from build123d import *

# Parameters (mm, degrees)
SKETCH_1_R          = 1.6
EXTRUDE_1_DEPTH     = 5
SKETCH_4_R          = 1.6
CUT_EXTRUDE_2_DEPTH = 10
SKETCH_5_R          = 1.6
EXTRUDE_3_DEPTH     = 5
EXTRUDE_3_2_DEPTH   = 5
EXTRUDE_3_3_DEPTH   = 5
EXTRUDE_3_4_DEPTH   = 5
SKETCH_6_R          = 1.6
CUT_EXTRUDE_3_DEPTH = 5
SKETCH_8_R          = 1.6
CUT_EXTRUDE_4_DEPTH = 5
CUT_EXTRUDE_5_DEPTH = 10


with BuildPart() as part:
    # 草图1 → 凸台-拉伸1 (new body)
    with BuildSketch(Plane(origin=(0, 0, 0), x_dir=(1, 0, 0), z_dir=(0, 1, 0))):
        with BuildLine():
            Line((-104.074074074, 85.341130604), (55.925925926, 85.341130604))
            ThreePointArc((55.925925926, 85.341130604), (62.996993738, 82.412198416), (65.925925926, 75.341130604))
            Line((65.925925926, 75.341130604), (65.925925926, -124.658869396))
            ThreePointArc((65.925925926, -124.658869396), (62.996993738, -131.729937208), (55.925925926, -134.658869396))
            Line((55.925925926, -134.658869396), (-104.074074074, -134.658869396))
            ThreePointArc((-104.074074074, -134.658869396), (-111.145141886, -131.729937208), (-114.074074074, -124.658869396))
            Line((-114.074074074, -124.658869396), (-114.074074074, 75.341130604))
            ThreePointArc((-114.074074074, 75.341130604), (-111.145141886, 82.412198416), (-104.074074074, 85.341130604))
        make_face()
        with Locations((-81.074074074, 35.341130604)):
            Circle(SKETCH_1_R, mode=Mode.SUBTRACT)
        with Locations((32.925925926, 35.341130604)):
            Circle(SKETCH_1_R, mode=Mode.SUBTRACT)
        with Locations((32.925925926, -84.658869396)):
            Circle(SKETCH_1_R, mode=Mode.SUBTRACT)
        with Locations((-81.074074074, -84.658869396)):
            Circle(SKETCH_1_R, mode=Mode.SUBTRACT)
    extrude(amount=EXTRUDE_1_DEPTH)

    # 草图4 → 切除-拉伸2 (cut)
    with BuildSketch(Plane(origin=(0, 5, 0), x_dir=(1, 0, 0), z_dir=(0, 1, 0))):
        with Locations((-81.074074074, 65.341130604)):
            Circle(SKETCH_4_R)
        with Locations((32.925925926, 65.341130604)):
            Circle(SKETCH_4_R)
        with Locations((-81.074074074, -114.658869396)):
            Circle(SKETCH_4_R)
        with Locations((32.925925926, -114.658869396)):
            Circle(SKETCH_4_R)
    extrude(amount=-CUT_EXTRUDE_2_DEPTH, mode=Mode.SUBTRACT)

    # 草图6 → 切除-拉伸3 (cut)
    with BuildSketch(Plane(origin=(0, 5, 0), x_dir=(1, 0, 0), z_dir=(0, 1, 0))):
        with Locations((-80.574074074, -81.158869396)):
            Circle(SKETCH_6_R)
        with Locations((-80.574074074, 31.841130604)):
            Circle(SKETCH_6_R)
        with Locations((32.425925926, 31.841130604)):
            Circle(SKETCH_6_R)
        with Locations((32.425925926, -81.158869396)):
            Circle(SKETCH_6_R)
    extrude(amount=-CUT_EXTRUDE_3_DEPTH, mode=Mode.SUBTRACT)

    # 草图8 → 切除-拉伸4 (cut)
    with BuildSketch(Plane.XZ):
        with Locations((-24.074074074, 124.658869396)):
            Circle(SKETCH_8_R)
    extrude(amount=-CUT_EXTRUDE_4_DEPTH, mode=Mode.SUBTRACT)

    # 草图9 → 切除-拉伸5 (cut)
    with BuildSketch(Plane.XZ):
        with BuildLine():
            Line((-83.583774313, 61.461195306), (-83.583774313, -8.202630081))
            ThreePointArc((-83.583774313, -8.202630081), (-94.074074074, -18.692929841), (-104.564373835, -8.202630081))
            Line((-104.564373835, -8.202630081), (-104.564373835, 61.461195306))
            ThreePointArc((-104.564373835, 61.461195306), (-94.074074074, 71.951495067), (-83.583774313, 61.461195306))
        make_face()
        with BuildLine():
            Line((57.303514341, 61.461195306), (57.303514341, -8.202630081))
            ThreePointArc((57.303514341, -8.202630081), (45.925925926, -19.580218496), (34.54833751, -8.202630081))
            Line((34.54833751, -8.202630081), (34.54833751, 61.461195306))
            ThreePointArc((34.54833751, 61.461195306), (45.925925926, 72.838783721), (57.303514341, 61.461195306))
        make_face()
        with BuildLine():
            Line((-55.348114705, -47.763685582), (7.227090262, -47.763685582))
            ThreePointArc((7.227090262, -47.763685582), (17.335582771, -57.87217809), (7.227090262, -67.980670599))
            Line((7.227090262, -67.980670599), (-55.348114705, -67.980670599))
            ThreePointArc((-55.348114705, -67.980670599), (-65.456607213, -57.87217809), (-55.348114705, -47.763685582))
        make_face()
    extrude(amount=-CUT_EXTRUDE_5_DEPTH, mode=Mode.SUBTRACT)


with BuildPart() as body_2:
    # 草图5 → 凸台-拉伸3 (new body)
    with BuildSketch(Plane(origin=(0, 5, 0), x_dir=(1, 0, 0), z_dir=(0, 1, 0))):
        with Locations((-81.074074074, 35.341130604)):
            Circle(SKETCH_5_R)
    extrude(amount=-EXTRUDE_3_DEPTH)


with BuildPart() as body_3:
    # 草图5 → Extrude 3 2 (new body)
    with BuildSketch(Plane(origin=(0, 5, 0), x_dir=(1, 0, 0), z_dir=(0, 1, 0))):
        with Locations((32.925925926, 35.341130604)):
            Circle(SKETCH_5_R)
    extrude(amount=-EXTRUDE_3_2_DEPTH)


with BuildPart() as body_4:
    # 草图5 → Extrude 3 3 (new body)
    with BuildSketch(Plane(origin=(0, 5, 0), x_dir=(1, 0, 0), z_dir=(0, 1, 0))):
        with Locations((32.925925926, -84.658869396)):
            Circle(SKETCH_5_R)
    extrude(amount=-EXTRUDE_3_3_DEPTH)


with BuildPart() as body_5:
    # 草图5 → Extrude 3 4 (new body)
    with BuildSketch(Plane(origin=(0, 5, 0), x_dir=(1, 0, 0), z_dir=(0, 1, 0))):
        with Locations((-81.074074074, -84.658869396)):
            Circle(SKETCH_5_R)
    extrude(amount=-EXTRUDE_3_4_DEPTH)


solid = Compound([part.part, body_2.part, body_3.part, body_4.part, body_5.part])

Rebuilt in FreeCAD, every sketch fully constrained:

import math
import FreeCAD as App
import Part
import Sketcher
from FreeCAD import Vector

doc = App.newDocument("Part")
params = doc.addObject("Spreadsheet::Sheet", "Params")
for row, (alias, value) in enumerate([
    ("sketch1_radius", "10 mm"),
    ("sketch1_diameter", "3.2 mm"),
    ("sketch1_width", "160 mm"),
    ("sketch1_height", "200 mm"),
    ("pad1_length", "5 mm"),
    ("sketch2_diameter", "3.2 mm"),
    ("pocket1_length", "10 mm"),
    ("sketch3_diameter", "3.2 mm"),
    ("pocket2_length", "5 mm"),
    ("sketch4_diameter", "3.2 mm"),
    ("pocket3_length", "5 mm"),
    ("pocket4_length", "10 mm"),
    ("sketch6_diameter", "3.2 mm"),
    ("pad2_length", "5 mm"),
    ("sketch7_diameter", "3.2 mm"),
    ("pad3_length", "5 mm"),
    ("sketch8_diameter", "3.2 mm"),
    ("pad4_length", "5 mm"),
    ("sketch9_diameter", "3.2 mm"),
    ("pad5_length", "5 mm"),
], start=1):
    params.set(f"A{row}", alias)
    params.set(f"B{row}", "=" + value)
    params.setAlias(f"B{row}", alias)

body = doc.addObject("PartDesign::Body", "Body")

sketch1 = body.newObject("Sketcher::SketchObject", "Sketch")
sketch1.AttachmentSupport = (doc.getObject("XZ_Plane"), [""])
sketch1.MapMode = "FlatFace"
sketch1.addGeometry([
    Part.LineSegment(Vector(55.925926, -85.341131, 0), Vector(-104.074074, -85.341131, 0)),
    Part.ArcOfCircle(Part.Circle(Vector(-104.074074, -75.341131, 0), Vector(0, 0, 1), 10), math.radians(180), math.radians(270)),
    Part.LineSegment(Vector(-114.074074, -75.341131, 0), Vector(-114.074074, 124.658869, 0)),
    Part.ArcOfCircle(Part.Circle(Vector(-104.074074, 124.658869, 0), Vector(0, 0, 1), 10), math.radians(90), math.radians(180)),
    Part.LineSegment(Vector(-104.074074, 134.658869, 0), Vector(55.925926, 134.658869, 0)),
    Part.ArcOfCircle(Part.Circle(Vector(55.925926, 124.658869, 0), Vector(0, 0, 1), 10), math.radians(0), math.radians(90)),
    Part.LineSegment(Vector(65.925926, 124.658869, 0), Vector(65.925926, -75.341131, 0)),
    Part.ArcOfCircle(Part.Circle(Vector(55.925926, -75.341131, 0), Vector(0, 0, 1), 10), math.radians(-90), math.radians(0)),
    Part.Circle(Vector(32.925926, 84.658869, 0), Vector(0, 0, 1), 1.6),
    Part.Circle(Vector(-81.074074, 84.658869, 0), Vector(0, 0, 1), 1.6),
    Part.Circle(Vector(32.925926, -35.341131, 0), Vector(0, 0, 1), 1.6),
    Part.Circle(Vector(-81.074074, -35.341131, 0), Vector(0, 0, 1), 1.6),
], False)
sketch1.addConstraint([
    Sketcher.Constraint("Tangent", 0, 2, 1, 2),
    Sketcher.Constraint("Tangent", 1, 1, 2, 1),
    Sketcher.Constraint("Tangent", 2, 2, 3, 2),
    Sketcher.Constraint("Tangent", 3, 1, 4, 1),
    Sketcher.Constraint("Tangent", 4, 2, 5, 2),
    Sketcher.Constraint("Tangent", 5, 1, 6, 1),
    Sketcher.Constraint("Tangent", 6, 2, 7, 2),
    Sketcher.Constraint("Tangent", 7, 1, 0, 1),
    Sketcher.Constraint("Horizontal", 0),
    Sketcher.Constraint("Vertical", 2),
    Sketcher.Constraint("Horizontal", 4),
    Sketcher.Constraint("Vertical", 6),
    Sketcher.Constraint("Equal", 1, 3),
    Sketcher.Constraint("Equal", 3, 5),
    Sketcher.Constraint("Equal", 5, 7),
    Sketcher.Constraint("Equal", 8, 9),
    Sketcher.Constraint("Equal", 9, 10),
    Sketcher.Constraint("Equal", 10, 11),
    Sketcher.Constraint("Horizontal", 8, 3, 9, 3),
    Sketcher.Constraint("Horizontal", 10, 3, 11, 3),
    Sketcher.Constraint("Vertical", 8, 3, 10, 3),
    Sketcher.Constraint("Vertical", 9, 3, 11, 3),
    Sketcher.Constraint("Radius", 1, 10.0),
    Sketcher.Constraint("Diameter", 8, 3.2),
    Sketcher.Constraint("DistanceX", 0, 2, 0, 1, 160.0),
    Sketcher.Constraint("DistanceY", 2, 1, 2, 2, 200.0),
    Sketcher.Constraint("DistanceX", 8, 3, 5, 3, 23.0),
    Sketcher.Constraint("DistanceY", 8, 3, 5, 3, 40.0),
    Sketcher.Constraint("DistanceX", 3, 3, 9, 3, 23.0),
    Sketcher.Constraint("DistanceY", 7, 3, 10, 3, 40.0),
    Sketcher.Constraint("DistanceY", 1, 3, -1, 1, 75.341131),
    Sketcher.Constraint("DistanceX", 1, 3, -1, 1, 104.074074),
])
sketch1.setExpression("Constraints[22]", "Params.sketch1_radius")
sketch1.setExpression("Constraints[23]", "Params.sketch1_diameter")
sketch1.setExpression("Constraints[24]", "Params.sketch1_width")
sketch1.setExpression("Constraints[25]", "Params.sketch1_height")
pad1 = body.newObject("PartDesign::Pad", "Pad")
pad1.Profile = sketch1
pad1.setExpression("Length", "Params.pad1_length")
pad1.Reversed = True

sketch2 = body.newObject("Sketcher::SketchObject", "Sketch001")
sketch2.AttachmentSupport = (doc.getObject("XZ_Plane"), [""])
sketch2.MapMode = "FlatFace"
sketch2.AttachmentOffset = App.Placement(Vector(0, 0, -5), App.Rotation())
sketch2.addGeometry([
    Part.Circle(Vector(-81.074074, -65.341131, 0), Vector(0, 0, 1), 1.6),
    Part.Circle(Vector(32.925926, -65.341131, 0), Vector(0, 0, 1), 1.6),
    Part.Circle(Vector(-81.074074, 114.658869, 0), Vector(0, 0, 1), 1.6),
    Part.Circle(Vector(32.925926, 114.658869, 0), Vector(0, 0, 1), 1.6),
], False)
sketch2.addConstraint([
    Sketcher.Constraint("Equal", 0, 1),
    Sketcher.Constraint("Equal", 1, 2),
    Sketcher.Constraint("Equal", 2, 3),
    Sketcher.Constraint("Horizontal", 0, 3, 1, 3),
    Sketcher.Constraint("Horizontal", 2, 3, 3, 3),
    Sketcher.Constraint("Vertical", 0, 3, 2, 3),
    Sketcher.Constraint("Vertical", 1, 3, 3, 3),
    Sketcher.Constraint("Diameter", 0, 3.2),
    Sketcher.Constraint("DistanceX", 0, 3, 1, 3, 114.0),
    Sketcher.Constraint("DistanceY", 0, 3, 2, 3, 180.0),
    Sketcher.Constraint("DistanceY", 0, 3, -1, 1, 65.341131),
    Sketcher.Constraint("DistanceX", 0, 3, -1, 1, 81.074074),
])
sketch2.setExpression("Constraints[7]", "Params.sketch2_diameter")
pocket1 = body.newObject("PartDesign::Pocket", "Pocket")
pocket1.Profile = sketch2
pocket1.setExpression("Length", "Params.pocket1_length")
pocket1.Reversed = True

sketch3 = body.newObject("Sketcher::SketchObject", "Sketch002")
sketch3.AttachmentSupport = (doc.getObject("XZ_Plane"), [""])
sketch3.MapMode = "FlatFace"
sketch3.AttachmentOffset = App.Placement(Vector(0, 0, -5), App.Rotation())
sketch3.addGeometry([
    Part.Circle(Vector(-80.574074, 81.158869, 0), Vector(0, 0, 1), 1.6),
    Part.Circle(Vector(-80.574074, -31.841131, 0), Vector(0, 0, 1), 1.6),
    Part.Circle(Vector(32.425926, -31.841131, 0), Vector(0, 0, 1), 1.6),
    Part.Circle(Vector(32.425926, 81.158869, 0), Vector(0, 0, 1), 1.6),
], False)
sketch3.addConstraint([
    Sketcher.Constraint("Equal", 0, 1),
    Sketcher.Constraint("Equal", 1, 2),
    Sketcher.Constraint("Equal", 2, 3),
    Sketcher.Constraint("Horizontal", 1, 3, 2, 3),
    Sketcher.Constraint("Horizontal", 0, 3, 3, 3),
    Sketcher.Constraint("Vertical", 0, 3, 1, 3),
    Sketcher.Constraint("Vertical", 2, 3, 3, 3),
    Sketcher.Constraint("Diameter", 0, 3.2),
    Sketcher.Constraint("DistanceY", 1, 3, 0, 3, 113.0),
    Sketcher.Constraint("DistanceX", 1, 3, 2, 3, 113.0),
    Sketcher.Constraint("DistanceY", -1, 1, 0, 3, 81.158869),
    Sketcher.Constraint("DistanceX", 0, 3, -1, 1, 80.574074),
])
sketch3.setExpression("Constraints[7]", "Params.sketch3_diameter")
pocket2 = body.newObject("PartDesign::Pocket", "Pocket001")
pocket2.Profile = sketch3
pocket2.setExpression("Length", "Params.pocket2_length")
pocket2.Reversed = True

sketch4 = body.newObject("Sketcher::SketchObject", "Sketch003")
sketch4.AttachmentSupport = (doc.getObject("XZ_Plane"), [""])
sketch4.MapMode = "FlatFace"
sketch4.addGeometry(Part.Circle(Vector(-24.074074, 124.658869, 0), Vector(0, 0, 1), 1.6), False)
sketch4.addConstraint([
    Sketcher.Constraint("Diameter", 0, 3.2),
    Sketcher.Constraint("DistanceY", -1, 1, 0, 3, 124.658869),
    Sketcher.Constraint("DistanceX", 0, 3, -1, 1, 24.074074),
])
sketch4.setExpression("Constraints[0]", "Params.sketch4_diameter")
pocket3 = body.newObject("PartDesign::Pocket", "Pocket002")
pocket3.Profile = sketch4
pocket3.setExpression("Length", "Params.pocket3_length")

sketch5 = body.newObject("Sketcher::SketchObject", "Sketch004")
sketch5.AttachmentSupport = (doc.getObject("XZ_Plane"), [""])
sketch5.MapMode = "FlatFace"
sketch5.addGeometry([
    Part.LineSegment(Vector(-83.583774, -8.20263, 0), Vector(-83.583774, 61.461195, 0)),
    Part.ArcOfCircle(Part.Circle(Vector(-94.074074, 61.461195, 0), Vector(0, 0, 1), 10.4903), math.radians(0), math.radians(180)),
    Part.LineSegment(Vector(-104.564374, 61.461195, 0), Vector(-104.564374, -8.20263, 0)),
    Part.ArcOfCircle(Part.Circle(Vector(-94.074074, -8.20263, 0), Vector(0, 0, 1), 10.4903), math.radians(-180), math.radians(0)),
    Part.LineSegment(Vector(57.303514, -8.20263, 0), Vector(57.303514, 61.461195, 0)),
    Part.ArcOfCircle(Part.Circle(Vector(45.925926, 61.461195, 0), Vector(0, 0, 1), 11.377588), math.radians(0), math.radians(180)),
    Part.LineSegment(Vector(34.548338, 61.461195, 0), Vector(34.548338, -8.20263, 0)),
    Part.ArcOfCircle(Part.Circle(Vector(45.925926, -8.20263, 0), Vector(0, 0, 1), 11.377588), math.radians(180), math.radians(360)),
    Part.LineSegment(Vector(7.22709, -47.763686, 0), Vector(-55.348115, -47.763686, 0)),
    Part.ArcOfCircle(Part.Circle(Vector(-55.348115, -57.872178, 0), Vector(0, 0, 1), 10.108493), math.radians(90), math.radians(270)),
    Part.LineSegment(Vector(-55.348115, -67.980671, 0), Vector(7.22709, -67.980671, 0)),
    Part.ArcOfCircle(Part.Circle(Vector(7.22709, -57.872178, 0), Vector(0, 0, 1), 10.108493), math.radians(-90), math.radians(90)),
], False)
sketch5.addConstraint([
    Sketcher.Constraint("Tangent", 0, 2, 1, 1),
    Sketcher.Constraint("Tangent", 1, 2, 2, 1),
    Sketcher.Constraint("Tangent", 2, 2, 3, 1),
    Sketcher.Constraint("Tangent", 3, 2, 0, 1),
    Sketcher.Constraint("Tangent", 4, 2, 5, 1),
    Sketcher.Constraint("Tangent", 5, 2, 6, 1),
    Sketcher.Constraint("Tangent", 6, 2, 7, 1),
    Sketcher.Constraint("Tangent", 7, 2, 4, 1),
    Sketcher.Constraint("Tangent", 8, 2, 9, 1),
    Sketcher.Constraint("Tangent", 9, 2, 10, 1),
    Sketcher.Constraint("Tangent", 10, 2, 11, 1),
    Sketcher.Constraint("Tangent", 11, 2, 8, 1),
    Sketcher.Constraint("Vertical", 0),
    Sketcher.Constraint("Vertical", 2),
    Sketcher.Constraint("Vertical", 4),
    Sketcher.Constraint("Vertical", 6),
    Sketcher.Constraint("Horizontal", 8),
    Sketcher.Constraint("Horizontal", 10),
    Sketcher.Constraint("Horizontal", 1, 3, 5, 3),
    Sketcher.Constraint("Horizontal", 3, 3, 7, 3),
    Sketcher.Constraint("DistanceX", 1, 3, 5, 3, 140.0),
    Sketcher.Constraint("Radius", 1, 10.4903),
    Sketcher.Constraint("Radius", 5, 11.377588),
    Sketcher.Constraint("Radius", 9, 10.108493),
    Sketcher.Constraint("DistanceX", 8, 2, 8, 1, 62.575205),
    Sketcher.Constraint("DistanceY", 0, 1, 0, 2, 69.663825),
    Sketcher.Constraint("DistanceY", 3, 3, -1, 1, 8.20263),
    Sketcher.Constraint("DistanceY", 9, 3, -1, 1, 57.872178),
    Sketcher.Constraint("DistanceX", -1, 1, 11, 3, 7.22709),
    Sketcher.Constraint("DistanceX", 3, 3, 9, 3, 38.725959),
])
pocket4 = body.newObject("PartDesign::Pocket", "Pocket003")
pocket4.Profile = sketch5
pocket4.setExpression("Length", "Params.pocket4_length")
body2 = doc.addObject("PartDesign::Body", "Body001")

sketch6 = body2.newObject("Sketcher::SketchObject", "Sketch005")
sketch6.AttachmentSupport = (doc.getObject("XZ_Plane001"), [""])
sketch6.MapMode = "FlatFace"
sketch6.AttachmentOffset = App.Placement(Vector(0, 0, -5), App.Rotation())
sketch6.addGeometry(Part.Circle(Vector(-81.074074, -35.341131, 0), Vector(0, 0, 1), 1.6), False)
sketch6.addConstraint([
    Sketcher.Constraint("Diameter", 0, 3.2),
    Sketcher.Constraint("DistanceY", 0, 3, -1, 1, 35.341131),
    Sketcher.Constraint("DistanceX", 0, 3, -1, 1, 81.074074),
])
sketch6.setExpression("Constraints[0]", "Params.sketch6_diameter")
pad2 = body2.newObject("PartDesign::Pad", "Pad001")
pad2.Profile = sketch6
pad2.setExpression("Length", "Params.pad2_length")
body3 = doc.addObject("PartDesign::Body", "Body002")

sketch7 = body3.newObject("Sketcher::SketchObject", "Sketch006")
sketch7.AttachmentSupport = (doc.getObject("XZ_Plane002"), [""])
sketch7.MapMode = "FlatFace"
sketch7.AttachmentOffset = App.Placement(Vector(0, 0, -5), App.Rotation())
sketch7.addGeometry(Part.Circle(Vector(32.925926, -35.341131, 0), Vector(0, 0, 1), 1.6), False)
sketch7.addConstraint([
    Sketcher.Constraint("Diameter", 0, 3.2),
    Sketcher.Constraint("DistanceY", 0, 3, -1, 1, 35.341131),
    Sketcher.Constraint("DistanceX", -1, 1, 0, 3, 32.925926),
])
sketch7.setExpression("Constraints[0]", "Params.sketch7_diameter")
pad3 = body3.newObject("PartDesign::Pad", "Pad002")
pad3.Profile = sketch7
pad3.setExpression("Length", "Params.pad3_length")
body4 = doc.addObject("PartDesign::Body", "Body003")

sketch8 = body4.newObject("Sketcher::SketchObject", "Sketch007")
sketch8.AttachmentSupport = (doc.getObject("XZ_Plane003"), [""])
sketch8.MapMode = "FlatFace"
sketch8.AttachmentOffset = App.Placement(Vector(0, 0, -5), App.Rotation())
sketch8.addGeometry(Part.Circle(Vector(32.925926, 84.658869, 0), Vector(0, 0, 1), 1.6), False)
sketch8.addConstraint([
    Sketcher.Constraint("Diameter", 0, 3.2),
    Sketcher.Constraint("DistanceY", -1, 1, 0, 3, 84.658869),
    Sketcher.Constraint("DistanceX", -1, 1, 0, 3, 32.925926),
])
sketch8.setExpression("Constraints[0]", "Params.sketch8_diameter")
pad4 = body4.newObject("PartDesign::Pad", "Pad003")
pad4.Profile = sketch8
pad4.setExpression("Length", "Params.pad4_length")
body5 = doc.addObject("PartDesign::Body", "Body004")

sketch9 = body5.newObject("Sketcher::SketchObject", "Sketch008")
sketch9.AttachmentSupport = (doc.getObject("XZ_Plane004"), [""])
sketch9.MapMode = "FlatFace"
sketch9.AttachmentOffset = App.Placement(Vector(0, 0, -5), App.Rotation())
sketch9.addGeometry(Part.Circle(Vector(-81.074074, 84.658869, 0), Vector(0, 0, 1), 1.6), False)
sketch9.addConstraint([
    Sketcher.Constraint("Diameter", 0, 3.2),
    Sketcher.Constraint("DistanceY", -1, 1, 0, 3, 84.658869),
    Sketcher.Constraint("DistanceX", 0, 3, -1, 1, 81.074074),
])
sketch9.setExpression("Constraints[0]", "Params.sketch9_diameter")
pad5 = body5.newObject("PartDesign::Pad", "Pad004")
pad5.Profile = sketch9
pad5.setExpression("Length", "Params.pad5_length")

doc.recompute()
